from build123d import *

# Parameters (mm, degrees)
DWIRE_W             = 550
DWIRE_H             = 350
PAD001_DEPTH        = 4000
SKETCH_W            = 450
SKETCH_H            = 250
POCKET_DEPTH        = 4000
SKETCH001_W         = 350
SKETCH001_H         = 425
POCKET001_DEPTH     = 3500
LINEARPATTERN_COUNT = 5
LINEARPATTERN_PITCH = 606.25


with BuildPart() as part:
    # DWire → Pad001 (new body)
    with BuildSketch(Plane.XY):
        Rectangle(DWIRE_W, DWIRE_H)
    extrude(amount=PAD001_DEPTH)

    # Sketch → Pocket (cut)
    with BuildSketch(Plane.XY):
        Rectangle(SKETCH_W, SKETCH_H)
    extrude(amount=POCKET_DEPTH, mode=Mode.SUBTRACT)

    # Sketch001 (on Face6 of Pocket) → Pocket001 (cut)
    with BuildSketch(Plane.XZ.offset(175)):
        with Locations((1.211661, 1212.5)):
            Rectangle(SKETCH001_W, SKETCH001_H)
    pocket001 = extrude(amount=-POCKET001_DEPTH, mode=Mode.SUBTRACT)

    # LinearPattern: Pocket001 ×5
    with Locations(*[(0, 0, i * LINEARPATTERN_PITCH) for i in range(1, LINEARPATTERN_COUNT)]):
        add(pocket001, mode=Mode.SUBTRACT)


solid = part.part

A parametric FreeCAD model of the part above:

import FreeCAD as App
import Part
import Sketcher

V = App.Vector
Q = App.Units.Quantity

doc = App.newDocument("Part")
body = doc.addObject("PartDesign::Body", "Body")

sketch1 = body.newObject("Sketcher::SketchObject", "Sketch")
sketch1.AttachmentSupport = (doc.getObject("XY_Plane"), [""])
sketch1.MapMode = "FlatFace"
sketch1.addGeometry([
    Part.LineSegment(V(-275, 175, 0), V(-275, -175, 0)),
    Part.LineSegment(V(-275, -175, 0), V(275, -175, 0)),
    Part.LineSegment(V(275, -175, 0), V(275, 175, 0)),
    Part.LineSegment(V(275, 175, 0), V(-275, 175, 0)),
], False)
sketch1.addConstraint([
    Sketcher.Constraint("Coincident", 0, 2, 1, 1),
    Sketcher.Constraint("Coincident", 1, 2, 2, 1),
    Sketcher.Constraint("Coincident", 2, 2, 3, 1),
    Sketcher.Constraint("Coincident", 3, 2, 0, 1),
    Sketcher.Constraint("Vertical", 0),
    Sketcher.Constraint("Horizontal", 1),
    Sketcher.Constraint("Vertical", 2),
    Sketcher.Constraint("Horizontal", 3),
    Sketcher.Constraint("Symmetric", 0, 2, 2, 2, -1, 1),
    Sketcher.Constraint("DistanceX", 1, 1, 1, 2, Q("550 mm")),
    Sketcher.Constraint("DistanceY", 0, 2, 0, 1, Q("350 mm")),
])
pad1 = body.newObject("PartDesign::Pad", "Pad")
pad1.Profile = sketch1
pad1.Length = 4000

sketch2 = body.newObject("Sketcher::SketchObject", "Sketch001")
sketch2.AttachmentSupport = (doc.getObject("XY_Plane"), [""])
sketch2.MapMode = "FlatFace"
sketch2.addGeometry([
    Part.LineSegment(V(-225, 125, 0), V(-225, -125, 0)),
    Part.LineSegment(V(-225, -125, 0), V(225, -125, 0)),
    Part.LineSegment(V(225, -125, 0), V(225, 125, 0)),
    Part.LineSegment(V(225, 125, 0), V(-225, 125, 0)),
], False)
sketch2.addConstraint([
    Sketcher.Constraint("Coincident", 0, 2, 1, 1),
    Sketcher.Constraint("Coincident", 1, 2, 2, 1),
    Sketcher.Constraint("Coincident", 2, 2, 3, 1),
    Sketcher.Constraint("Coincident", 3, 2, 0, 1),
    Sketcher.Constraint("Vertical", 0),
    Sketcher.Constraint("Horizontal", 1),
    Sketcher.Constraint("Vertical", 2),
    Sketcher.Constraint("Horizontal", 3),
    Sketcher.Constraint("Symmetric", 0, 2, 2, 2, -1, 1),
    Sketcher.Constraint("DistanceX", 1, 1, 1, 2, Q("450 mm")),
    Sketcher.Constraint("DistanceY", 0, 2, 0, 1, Q("250 mm")),
])
pocket1 = body.newObject("PartDesign::Pocket", "Pocket")
pocket1.Profile = sketch2
pocket1.Length = 4000
pocket1.Reversed = True

sketch3 = body.newObject("Sketcher::SketchObject", "Sketch002")
sketch3.AttachmentSupport = (doc.getObject("XZ_Plane"), [""])
sketch3.MapMode = "FlatFace"
sketch3.AttachmentOffset = App.Placement(V(0, 0, 175), App.Rotation())
sketch3.addGeometry([
    Part.LineSegment(V(-174, 1425, 0), V(-174, 1000, 0)),
    Part.LineSegment(V(-174, 1000, 0), V(176, 1000, 0)),
    Part.LineSegment(V(176, 1000, 0), V(176, 1425, 0)),
    Part.LineSegment(V(176, 1425, 0), V(-174, 1425, 0)),
], False)
sketch3.addConstraint([
    Sketcher.Constraint("Coincident", 0, 2, 1, 1),
    Sketcher.Constraint("Coincident", 1, 2, 2, 1),
    Sketcher.Constraint("Coincident", 2, 2, 3, 1),
    Sketcher.Constraint("Coincident", 3, 2, 0, 1),
    Sketcher.Constraint("Vertical", 0),
    Sketcher.Constraint("Horizontal", 1),
    Sketcher.Constraint("Vertical", 2),
    Sketcher.Constraint("Horizontal", 3),
    Sketcher.Constraint("DistanceX", 1, 1, 1, 2, Q("350 mm")),
    Sketcher.Constraint("DistanceY", 0, 2, 0, 1, Q("425 mm")),
    Sketcher.Constraint("DistanceY", -1, 1, 0, 2, Q("1000 mm")),
    Sketcher.Constraint("DistanceX", 0, 2, -1, 1, Q("173.788339 mm")),
])
pocket2 = body.newObject("PartDesign::Pocket", "Pocket001")
pocket2.Profile = sketch3
pocket2.Length = 3500
doc.recompute()

linearpattern = body.newObject("PartDesign::LinearPattern", "LinearPattern")
linearpattern.Originals = [pocket2]
linearpattern.Direction = (doc.getObject("Z_Axis"), [""])
linearpattern.Mode = "offset"
linearpattern.Offset = 606.25
linearpattern.Occurrences = 5
body.Tip = linearpattern

doc.recompute()
